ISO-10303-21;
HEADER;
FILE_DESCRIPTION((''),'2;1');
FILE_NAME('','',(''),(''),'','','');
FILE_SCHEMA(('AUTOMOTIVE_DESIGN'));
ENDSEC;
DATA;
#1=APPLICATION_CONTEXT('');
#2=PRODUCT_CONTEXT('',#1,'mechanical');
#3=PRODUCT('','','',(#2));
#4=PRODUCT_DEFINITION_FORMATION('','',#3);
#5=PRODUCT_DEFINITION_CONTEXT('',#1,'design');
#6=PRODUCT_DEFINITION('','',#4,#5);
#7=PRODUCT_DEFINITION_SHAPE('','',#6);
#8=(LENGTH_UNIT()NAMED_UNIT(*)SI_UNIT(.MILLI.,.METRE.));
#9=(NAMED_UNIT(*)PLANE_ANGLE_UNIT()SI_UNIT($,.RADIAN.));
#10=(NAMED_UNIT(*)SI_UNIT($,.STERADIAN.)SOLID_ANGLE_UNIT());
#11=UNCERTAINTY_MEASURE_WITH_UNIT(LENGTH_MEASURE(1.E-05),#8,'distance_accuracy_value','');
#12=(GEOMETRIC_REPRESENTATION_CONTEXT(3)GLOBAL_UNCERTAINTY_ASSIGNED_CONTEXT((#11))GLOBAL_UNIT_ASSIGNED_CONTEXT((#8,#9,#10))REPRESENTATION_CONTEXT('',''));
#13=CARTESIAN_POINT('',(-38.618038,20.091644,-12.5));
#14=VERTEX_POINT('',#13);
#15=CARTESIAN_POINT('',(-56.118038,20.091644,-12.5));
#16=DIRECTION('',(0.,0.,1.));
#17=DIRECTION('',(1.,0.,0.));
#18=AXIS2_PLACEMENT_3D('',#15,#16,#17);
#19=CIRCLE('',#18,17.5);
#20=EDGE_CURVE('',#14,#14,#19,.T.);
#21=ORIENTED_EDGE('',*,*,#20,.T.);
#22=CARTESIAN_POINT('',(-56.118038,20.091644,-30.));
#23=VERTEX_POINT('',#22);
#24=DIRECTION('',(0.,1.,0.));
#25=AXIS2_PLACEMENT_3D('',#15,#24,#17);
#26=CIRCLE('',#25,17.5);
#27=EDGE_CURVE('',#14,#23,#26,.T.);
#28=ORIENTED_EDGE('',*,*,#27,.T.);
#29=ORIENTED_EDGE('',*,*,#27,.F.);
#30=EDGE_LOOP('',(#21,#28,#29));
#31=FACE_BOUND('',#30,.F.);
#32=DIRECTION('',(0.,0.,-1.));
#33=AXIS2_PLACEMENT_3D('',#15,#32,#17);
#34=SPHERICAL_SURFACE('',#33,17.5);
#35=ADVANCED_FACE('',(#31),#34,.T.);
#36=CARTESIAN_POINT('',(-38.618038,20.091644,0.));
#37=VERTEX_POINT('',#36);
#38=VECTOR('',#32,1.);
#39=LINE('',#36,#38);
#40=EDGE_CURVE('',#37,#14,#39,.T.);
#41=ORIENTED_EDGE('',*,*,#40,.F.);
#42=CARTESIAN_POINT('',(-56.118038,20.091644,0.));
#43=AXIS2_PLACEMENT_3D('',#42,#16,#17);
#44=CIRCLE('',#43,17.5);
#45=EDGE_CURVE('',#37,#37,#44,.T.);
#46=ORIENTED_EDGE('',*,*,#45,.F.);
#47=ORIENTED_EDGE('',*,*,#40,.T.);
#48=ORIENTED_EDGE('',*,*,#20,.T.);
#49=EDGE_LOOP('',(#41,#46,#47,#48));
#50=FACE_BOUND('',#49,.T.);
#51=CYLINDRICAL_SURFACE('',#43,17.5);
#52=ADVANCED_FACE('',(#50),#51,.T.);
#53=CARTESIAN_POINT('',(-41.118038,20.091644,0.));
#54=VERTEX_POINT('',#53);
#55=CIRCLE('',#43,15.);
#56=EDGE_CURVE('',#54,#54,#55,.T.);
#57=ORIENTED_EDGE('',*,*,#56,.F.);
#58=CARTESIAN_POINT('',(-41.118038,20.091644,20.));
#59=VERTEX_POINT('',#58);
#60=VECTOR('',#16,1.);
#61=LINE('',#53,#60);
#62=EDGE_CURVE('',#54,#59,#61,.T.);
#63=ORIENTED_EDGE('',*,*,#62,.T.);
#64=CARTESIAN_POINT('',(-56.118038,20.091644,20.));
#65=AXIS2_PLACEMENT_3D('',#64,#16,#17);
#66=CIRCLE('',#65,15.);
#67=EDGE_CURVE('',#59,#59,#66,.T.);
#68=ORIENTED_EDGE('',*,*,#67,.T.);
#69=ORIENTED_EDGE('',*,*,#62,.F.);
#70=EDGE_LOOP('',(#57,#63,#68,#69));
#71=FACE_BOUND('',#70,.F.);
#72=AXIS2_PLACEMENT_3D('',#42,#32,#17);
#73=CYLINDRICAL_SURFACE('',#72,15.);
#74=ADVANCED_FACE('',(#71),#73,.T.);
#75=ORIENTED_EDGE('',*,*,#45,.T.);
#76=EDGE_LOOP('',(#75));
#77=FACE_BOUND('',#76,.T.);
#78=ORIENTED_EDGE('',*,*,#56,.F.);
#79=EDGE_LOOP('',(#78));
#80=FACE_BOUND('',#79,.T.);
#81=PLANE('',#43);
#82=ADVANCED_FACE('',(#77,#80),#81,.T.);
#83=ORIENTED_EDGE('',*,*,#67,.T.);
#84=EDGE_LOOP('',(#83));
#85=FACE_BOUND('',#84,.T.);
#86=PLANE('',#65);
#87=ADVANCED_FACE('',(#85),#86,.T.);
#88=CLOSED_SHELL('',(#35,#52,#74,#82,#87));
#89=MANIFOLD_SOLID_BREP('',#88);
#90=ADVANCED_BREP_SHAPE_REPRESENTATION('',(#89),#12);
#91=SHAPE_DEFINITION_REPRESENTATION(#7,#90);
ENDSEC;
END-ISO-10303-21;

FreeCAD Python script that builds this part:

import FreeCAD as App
import Part
import Sketcher


def edges_at(feature, points):
    """Names of the edges that pass closest to the given points."""
    edges = feature.Shape.Edges
    near = lambda p: min(range(len(edges)), key=lambda i: edges[i].distToShape(Part.Vertex(*p))[0])
    return sorted({f"Edge{near(p) + 1}" for p in points})

doc = App.newDocument("Part")
body = doc.addObject("PartDesign::Body", "Body")

# Sketch on XY plane
sketch1 = body.newObject("Sketcher::SketchObject", "Sketch")
sketch1.AttachmentSupport = (doc.getObject("XY_Plane"), [""])
sketch1.MapMode = "FlatFace"
sketch1.addGeometry(Part.Circle(App.Vector(-56.118038, 20.091644, 0), App.Vector(0, 0, 1), 15), False)
sketch1.addConstraint([
    Sketcher.Constraint("Diameter", 0, 30.0),
    Sketcher.Constraint("DistanceX", 0, 3, -1, 1, 56.118038),
    Sketcher.Constraint("DistanceY", -1, 1, 0, 3, 20.091644),
])
pad1 = body.newObject("PartDesign::Pad", "Pad")
pad1.Profile = sketch1
pad1.Length = 20

# Sketch on XY plane
sketch2 = body.newObject("Sketcher::SketchObject", "Sketch001")
sketch2.AttachmentSupport = (doc.getObject("XY_Plane"), [""])
sketch2.MapMode = "FlatFace"
sketch2.addGeometry(Part.Circle(App.Vector(-56.118038, 20.091644, 0), App.Vector(0, 0, 1), 17.5), False)
sketch2.addConstraint([
    Sketcher.Constraint("Diameter", 0, 35.0),
    Sketcher.Constraint("DistanceX", 0, 3, -1, 1, 56.118038),
    Sketcher.Constraint("DistanceY", -1, 1, 0, 3, 20.091644),
])
pad2 = body.newObject("PartDesign::Pad", "Pad001")
pad2.Profile = sketch2
pad2.Length = 30
pad2.Reversed = True
doc.recompute()

fillet = body.newObject("PartDesign::Fillet", "Fillet")
fillet.Base = (pad2, edges_at(pad2, [(-73.618, 20.092, -30)]))
fillet.Radius = 17.5

doc.recompute()
